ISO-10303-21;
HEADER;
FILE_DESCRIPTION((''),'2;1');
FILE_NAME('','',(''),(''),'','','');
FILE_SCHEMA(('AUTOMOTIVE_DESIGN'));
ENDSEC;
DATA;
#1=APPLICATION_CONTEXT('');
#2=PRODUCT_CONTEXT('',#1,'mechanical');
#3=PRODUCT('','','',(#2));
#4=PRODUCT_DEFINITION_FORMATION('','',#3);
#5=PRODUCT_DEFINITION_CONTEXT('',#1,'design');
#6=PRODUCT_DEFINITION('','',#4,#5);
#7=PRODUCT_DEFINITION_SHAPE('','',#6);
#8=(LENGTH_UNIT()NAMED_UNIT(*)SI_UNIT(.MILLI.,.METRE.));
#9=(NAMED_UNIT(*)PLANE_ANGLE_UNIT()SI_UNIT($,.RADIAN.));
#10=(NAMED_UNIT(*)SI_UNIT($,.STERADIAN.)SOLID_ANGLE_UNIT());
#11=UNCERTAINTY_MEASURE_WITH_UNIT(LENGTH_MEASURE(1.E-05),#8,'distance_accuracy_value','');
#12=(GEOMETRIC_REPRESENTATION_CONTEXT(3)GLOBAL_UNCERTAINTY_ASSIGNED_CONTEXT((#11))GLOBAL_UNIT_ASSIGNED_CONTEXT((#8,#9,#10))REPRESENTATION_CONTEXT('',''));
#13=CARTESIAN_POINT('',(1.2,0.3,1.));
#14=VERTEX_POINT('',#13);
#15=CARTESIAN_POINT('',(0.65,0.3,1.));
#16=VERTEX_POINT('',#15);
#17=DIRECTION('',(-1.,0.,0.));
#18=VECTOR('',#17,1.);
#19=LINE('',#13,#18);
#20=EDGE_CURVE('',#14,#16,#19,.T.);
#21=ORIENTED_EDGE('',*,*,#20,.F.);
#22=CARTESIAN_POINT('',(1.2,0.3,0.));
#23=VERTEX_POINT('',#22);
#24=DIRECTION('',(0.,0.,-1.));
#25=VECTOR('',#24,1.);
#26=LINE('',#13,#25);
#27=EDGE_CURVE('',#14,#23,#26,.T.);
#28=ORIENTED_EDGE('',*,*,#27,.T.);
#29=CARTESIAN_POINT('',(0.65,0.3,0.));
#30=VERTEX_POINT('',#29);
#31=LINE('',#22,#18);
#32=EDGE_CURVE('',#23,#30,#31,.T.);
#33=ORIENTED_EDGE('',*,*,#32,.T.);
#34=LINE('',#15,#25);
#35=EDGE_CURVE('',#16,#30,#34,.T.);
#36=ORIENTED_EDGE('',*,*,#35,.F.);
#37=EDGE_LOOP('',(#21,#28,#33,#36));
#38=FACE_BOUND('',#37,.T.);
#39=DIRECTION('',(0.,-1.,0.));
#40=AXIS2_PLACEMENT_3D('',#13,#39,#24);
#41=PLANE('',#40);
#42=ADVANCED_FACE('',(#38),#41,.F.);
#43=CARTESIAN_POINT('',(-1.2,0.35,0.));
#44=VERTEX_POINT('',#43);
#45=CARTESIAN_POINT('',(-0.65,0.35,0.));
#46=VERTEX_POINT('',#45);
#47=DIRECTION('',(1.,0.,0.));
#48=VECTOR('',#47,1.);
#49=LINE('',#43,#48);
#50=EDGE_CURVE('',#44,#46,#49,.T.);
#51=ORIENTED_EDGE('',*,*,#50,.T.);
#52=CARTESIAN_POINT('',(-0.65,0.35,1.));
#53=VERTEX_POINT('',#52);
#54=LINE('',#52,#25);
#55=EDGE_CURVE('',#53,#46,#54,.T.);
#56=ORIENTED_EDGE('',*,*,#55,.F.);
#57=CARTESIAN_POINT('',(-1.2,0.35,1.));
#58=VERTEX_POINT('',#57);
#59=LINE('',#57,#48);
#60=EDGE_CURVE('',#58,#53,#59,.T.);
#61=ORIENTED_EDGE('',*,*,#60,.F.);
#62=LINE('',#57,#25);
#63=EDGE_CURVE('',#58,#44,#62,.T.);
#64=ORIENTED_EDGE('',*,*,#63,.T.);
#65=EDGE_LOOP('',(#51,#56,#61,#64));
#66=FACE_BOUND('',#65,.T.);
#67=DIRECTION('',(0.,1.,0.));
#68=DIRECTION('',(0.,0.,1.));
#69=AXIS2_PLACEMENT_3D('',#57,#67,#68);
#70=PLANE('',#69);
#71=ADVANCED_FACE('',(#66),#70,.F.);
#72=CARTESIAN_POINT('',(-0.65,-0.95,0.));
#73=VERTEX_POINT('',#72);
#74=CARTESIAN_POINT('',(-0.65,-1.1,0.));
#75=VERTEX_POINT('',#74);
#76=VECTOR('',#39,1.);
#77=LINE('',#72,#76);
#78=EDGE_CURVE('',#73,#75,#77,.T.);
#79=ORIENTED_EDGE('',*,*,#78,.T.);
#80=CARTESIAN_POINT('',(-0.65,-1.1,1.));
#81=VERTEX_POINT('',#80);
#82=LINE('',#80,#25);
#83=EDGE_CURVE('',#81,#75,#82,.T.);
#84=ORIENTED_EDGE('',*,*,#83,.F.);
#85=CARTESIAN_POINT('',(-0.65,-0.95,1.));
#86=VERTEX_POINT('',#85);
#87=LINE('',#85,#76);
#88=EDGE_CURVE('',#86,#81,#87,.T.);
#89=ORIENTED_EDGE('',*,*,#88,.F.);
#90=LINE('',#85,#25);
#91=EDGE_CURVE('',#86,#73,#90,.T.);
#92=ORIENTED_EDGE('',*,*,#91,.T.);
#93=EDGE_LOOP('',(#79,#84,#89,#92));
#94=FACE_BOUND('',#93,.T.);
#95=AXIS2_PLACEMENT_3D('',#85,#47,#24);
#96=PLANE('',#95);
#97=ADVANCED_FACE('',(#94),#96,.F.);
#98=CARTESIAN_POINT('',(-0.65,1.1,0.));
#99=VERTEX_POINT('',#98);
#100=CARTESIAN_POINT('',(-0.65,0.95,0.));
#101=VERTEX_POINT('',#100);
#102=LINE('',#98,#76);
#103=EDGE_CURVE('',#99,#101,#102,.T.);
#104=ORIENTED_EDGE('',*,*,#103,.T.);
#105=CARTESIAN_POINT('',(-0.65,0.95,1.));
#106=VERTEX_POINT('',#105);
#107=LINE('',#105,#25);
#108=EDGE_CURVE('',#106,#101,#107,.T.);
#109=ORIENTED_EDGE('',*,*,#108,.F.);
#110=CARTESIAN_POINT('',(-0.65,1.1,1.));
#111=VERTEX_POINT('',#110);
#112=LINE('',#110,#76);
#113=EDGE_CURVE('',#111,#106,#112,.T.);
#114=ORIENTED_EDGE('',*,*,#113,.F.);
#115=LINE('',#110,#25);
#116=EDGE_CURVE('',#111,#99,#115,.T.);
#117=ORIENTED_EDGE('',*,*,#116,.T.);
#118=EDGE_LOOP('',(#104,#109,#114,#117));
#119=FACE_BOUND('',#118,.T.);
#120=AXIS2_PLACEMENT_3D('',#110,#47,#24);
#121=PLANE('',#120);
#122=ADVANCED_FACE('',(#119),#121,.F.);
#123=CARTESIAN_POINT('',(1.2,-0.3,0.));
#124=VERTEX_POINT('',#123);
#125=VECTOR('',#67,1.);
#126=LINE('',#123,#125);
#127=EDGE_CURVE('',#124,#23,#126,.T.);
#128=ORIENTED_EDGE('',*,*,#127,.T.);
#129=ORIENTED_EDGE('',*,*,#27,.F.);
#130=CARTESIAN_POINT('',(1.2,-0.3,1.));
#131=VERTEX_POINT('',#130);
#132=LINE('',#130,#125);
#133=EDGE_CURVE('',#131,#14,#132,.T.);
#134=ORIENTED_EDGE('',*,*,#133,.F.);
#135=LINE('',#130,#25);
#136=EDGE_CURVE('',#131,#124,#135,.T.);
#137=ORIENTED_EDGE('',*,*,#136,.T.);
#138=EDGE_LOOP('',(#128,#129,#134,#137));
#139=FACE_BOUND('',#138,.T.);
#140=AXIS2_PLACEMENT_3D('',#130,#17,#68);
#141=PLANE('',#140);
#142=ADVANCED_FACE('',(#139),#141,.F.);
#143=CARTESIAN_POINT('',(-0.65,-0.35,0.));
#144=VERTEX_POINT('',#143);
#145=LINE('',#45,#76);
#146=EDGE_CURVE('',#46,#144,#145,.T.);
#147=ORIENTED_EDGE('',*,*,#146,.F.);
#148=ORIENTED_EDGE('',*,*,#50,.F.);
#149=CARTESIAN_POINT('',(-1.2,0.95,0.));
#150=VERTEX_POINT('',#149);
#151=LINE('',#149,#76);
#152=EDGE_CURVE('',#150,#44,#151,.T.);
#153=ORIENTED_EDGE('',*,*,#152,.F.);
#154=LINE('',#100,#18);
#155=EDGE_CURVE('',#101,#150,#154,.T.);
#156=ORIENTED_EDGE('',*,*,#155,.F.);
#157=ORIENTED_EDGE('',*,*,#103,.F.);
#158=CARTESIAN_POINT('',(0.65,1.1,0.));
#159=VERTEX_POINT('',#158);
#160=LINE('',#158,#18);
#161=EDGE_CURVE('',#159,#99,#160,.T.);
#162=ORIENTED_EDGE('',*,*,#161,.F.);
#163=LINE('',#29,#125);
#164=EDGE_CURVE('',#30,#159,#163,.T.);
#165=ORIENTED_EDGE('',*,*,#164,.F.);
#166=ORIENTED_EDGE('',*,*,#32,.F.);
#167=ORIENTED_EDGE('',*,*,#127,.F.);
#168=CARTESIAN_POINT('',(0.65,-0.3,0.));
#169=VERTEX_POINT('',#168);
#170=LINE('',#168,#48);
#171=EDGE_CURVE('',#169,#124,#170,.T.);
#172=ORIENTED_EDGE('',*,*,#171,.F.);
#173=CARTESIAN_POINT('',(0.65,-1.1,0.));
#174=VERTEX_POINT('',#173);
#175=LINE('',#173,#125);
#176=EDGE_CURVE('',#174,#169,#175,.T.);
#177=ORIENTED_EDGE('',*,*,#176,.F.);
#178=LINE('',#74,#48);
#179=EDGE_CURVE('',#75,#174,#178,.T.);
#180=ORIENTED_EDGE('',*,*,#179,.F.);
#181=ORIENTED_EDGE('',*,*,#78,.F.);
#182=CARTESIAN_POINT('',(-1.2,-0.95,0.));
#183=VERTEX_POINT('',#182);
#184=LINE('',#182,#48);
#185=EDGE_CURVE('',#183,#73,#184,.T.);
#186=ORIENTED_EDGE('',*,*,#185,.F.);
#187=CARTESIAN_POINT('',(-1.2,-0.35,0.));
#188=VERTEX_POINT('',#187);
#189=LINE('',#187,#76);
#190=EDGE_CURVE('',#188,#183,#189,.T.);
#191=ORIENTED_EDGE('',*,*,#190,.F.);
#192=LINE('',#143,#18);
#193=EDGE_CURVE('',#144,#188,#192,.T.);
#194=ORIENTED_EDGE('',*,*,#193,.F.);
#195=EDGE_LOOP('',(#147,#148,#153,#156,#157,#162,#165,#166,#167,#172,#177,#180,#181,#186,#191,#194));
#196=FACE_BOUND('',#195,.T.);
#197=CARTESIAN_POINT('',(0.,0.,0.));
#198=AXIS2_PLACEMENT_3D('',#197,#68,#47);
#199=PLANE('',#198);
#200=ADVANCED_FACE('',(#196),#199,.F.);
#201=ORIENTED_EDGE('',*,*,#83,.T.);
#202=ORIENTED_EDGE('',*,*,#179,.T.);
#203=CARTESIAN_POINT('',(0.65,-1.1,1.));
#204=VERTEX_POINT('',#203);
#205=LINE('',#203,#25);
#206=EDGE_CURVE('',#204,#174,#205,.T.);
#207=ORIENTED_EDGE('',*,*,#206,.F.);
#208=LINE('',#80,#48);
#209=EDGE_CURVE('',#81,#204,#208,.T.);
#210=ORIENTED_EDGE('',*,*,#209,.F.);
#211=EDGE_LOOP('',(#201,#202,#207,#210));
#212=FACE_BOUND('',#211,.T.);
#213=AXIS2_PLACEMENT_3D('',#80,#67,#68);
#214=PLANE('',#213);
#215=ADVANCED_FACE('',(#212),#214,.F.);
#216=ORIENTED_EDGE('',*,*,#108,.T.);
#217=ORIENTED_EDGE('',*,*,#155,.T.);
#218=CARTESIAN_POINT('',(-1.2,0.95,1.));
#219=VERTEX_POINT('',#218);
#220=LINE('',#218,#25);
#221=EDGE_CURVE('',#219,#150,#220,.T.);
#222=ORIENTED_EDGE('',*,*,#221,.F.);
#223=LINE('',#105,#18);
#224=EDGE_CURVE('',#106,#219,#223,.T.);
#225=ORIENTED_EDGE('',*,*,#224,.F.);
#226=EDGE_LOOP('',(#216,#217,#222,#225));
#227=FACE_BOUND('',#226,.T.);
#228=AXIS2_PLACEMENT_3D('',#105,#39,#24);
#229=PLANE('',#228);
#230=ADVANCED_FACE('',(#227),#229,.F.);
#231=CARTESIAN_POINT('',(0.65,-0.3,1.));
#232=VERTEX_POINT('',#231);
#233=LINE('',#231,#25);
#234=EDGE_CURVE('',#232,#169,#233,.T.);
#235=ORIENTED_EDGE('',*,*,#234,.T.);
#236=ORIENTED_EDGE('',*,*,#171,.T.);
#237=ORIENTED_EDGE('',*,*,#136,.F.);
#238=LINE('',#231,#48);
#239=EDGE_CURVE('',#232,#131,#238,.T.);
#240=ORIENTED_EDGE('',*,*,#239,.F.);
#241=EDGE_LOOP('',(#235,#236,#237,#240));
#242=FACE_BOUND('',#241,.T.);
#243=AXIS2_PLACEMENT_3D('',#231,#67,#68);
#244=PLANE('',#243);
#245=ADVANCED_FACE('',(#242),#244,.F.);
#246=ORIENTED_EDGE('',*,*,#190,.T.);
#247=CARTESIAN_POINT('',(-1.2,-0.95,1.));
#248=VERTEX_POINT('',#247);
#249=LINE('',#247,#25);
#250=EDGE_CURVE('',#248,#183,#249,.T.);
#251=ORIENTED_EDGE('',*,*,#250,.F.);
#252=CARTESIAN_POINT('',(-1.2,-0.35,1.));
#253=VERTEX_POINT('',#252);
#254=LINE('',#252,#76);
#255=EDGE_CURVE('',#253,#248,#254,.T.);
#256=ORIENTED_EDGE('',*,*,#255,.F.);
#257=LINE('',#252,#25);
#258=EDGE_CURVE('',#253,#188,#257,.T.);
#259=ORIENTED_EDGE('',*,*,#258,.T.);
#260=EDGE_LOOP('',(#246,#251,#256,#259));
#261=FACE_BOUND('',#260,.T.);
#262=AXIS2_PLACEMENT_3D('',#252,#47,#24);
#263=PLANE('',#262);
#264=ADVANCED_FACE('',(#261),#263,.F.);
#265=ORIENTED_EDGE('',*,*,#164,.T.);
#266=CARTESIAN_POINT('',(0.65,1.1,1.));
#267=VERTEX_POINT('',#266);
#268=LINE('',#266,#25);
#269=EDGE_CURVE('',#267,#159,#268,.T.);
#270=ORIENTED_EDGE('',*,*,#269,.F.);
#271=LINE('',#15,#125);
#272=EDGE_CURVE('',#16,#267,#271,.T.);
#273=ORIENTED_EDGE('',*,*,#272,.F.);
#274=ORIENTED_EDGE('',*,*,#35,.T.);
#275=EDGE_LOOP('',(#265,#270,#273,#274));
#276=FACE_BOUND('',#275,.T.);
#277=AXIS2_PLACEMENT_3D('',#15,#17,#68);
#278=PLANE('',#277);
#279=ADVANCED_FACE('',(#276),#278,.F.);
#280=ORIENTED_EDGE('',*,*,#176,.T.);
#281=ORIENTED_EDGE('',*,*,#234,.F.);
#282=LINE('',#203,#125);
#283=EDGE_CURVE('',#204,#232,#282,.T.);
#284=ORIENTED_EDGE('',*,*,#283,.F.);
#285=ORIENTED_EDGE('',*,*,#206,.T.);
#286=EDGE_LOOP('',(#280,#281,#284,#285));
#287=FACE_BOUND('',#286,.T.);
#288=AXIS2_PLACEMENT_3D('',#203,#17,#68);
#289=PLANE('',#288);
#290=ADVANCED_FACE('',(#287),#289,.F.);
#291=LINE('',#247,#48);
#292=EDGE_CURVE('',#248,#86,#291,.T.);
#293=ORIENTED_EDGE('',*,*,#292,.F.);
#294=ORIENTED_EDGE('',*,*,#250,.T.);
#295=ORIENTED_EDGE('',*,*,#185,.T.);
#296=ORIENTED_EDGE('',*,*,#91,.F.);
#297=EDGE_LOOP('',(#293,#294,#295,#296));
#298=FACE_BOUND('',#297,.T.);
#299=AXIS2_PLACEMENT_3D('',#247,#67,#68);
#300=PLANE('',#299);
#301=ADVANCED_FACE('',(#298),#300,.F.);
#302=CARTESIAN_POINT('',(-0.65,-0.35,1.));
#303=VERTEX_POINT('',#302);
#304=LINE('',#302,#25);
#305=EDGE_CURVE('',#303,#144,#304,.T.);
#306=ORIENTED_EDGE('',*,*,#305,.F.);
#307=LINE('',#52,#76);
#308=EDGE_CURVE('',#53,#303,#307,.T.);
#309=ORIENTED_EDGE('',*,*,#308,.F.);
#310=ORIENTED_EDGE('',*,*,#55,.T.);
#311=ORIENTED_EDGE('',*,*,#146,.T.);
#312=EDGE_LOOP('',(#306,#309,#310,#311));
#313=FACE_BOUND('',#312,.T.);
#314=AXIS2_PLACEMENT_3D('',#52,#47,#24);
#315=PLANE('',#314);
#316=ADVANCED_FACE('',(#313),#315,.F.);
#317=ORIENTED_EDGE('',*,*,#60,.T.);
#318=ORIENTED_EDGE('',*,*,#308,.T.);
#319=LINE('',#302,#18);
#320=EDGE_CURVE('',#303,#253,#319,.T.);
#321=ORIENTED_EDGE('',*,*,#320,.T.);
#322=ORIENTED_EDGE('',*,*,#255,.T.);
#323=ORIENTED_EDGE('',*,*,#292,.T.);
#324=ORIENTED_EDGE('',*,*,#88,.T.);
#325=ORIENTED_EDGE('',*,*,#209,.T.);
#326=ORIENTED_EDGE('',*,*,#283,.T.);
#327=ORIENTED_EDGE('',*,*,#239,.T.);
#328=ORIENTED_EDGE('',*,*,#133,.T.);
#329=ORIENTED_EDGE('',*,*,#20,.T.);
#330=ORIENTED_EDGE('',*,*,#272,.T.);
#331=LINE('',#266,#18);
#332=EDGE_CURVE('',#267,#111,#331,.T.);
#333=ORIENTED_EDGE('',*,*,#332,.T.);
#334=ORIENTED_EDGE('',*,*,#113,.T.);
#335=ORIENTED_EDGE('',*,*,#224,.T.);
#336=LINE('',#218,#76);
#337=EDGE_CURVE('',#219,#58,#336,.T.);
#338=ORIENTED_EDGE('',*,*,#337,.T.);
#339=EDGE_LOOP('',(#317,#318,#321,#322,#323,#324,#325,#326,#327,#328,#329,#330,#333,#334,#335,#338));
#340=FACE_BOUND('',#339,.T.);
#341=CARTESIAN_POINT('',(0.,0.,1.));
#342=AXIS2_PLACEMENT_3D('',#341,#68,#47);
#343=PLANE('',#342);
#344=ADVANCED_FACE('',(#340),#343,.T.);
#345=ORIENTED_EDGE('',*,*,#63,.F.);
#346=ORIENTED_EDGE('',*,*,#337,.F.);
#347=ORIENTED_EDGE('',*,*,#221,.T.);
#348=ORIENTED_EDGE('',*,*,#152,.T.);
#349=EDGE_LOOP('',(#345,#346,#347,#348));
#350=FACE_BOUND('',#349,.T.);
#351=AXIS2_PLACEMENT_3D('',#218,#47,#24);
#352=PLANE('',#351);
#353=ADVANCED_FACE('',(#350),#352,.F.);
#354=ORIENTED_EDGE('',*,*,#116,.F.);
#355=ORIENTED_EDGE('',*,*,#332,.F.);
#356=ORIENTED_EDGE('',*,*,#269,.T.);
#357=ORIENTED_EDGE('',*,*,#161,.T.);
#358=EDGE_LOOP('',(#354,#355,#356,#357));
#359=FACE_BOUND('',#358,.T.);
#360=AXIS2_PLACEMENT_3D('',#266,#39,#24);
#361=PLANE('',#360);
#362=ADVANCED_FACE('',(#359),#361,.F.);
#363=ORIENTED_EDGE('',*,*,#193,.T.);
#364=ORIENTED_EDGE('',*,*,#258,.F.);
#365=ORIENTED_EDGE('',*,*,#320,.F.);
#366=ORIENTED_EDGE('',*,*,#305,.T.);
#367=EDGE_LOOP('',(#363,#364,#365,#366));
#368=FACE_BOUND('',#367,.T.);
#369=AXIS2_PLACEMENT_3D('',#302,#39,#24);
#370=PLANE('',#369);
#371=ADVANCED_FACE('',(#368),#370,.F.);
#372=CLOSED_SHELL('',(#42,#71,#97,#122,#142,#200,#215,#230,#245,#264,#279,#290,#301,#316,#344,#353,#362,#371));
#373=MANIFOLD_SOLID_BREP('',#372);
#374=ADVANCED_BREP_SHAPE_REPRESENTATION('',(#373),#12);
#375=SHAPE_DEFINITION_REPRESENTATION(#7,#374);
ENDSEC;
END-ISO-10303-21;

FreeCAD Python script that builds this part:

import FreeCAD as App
import Part
import Sketcher
from FreeCAD import Vector


def add_polygon(sketch, points):
    """Adds a closed chain of lines whose ends are joined by coincident constraints."""
    first, n = sketch.GeometryCount, len(points)
    for a, b in zip(points, points[1:] + points[:1]):
        sketch.addGeometry(Part.LineSegment(App.Vector(*a, 0), App.Vector(*b, 0)), False)
    for i in range(n):
        sketch.addConstraint(Sketcher.Constraint("Coincident", first + i, 2, first + (i + 1) % n, 1))

doc = App.newDocument("Part")
body = doc.addObject("PartDesign::Body", "Body")

# Sketch on XY plane
sketch1 = body.newObject("Sketcher::SketchObject", "Sketch")
sketch1.AttachmentSupport = (doc.getObject("XY_Plane"), [""])
sketch1.MapMode = "FlatFace"
add_polygon(sketch1, [(-0.65, 1.1), (-0.65, 0.95), (-1.2, 0.95), (-1.2, 0.35), (-0.65, 0.35), (-0.65, -0.35), (-1.2, -0.35), (-1.2, -0.95), (-0.65, -0.95), (-0.65, -1.1), (0.65, -1.1), (0.65, -0.3), (1.2, -0.3), (1.2, 0.3), (0.65, 0.3), (0.65, 1.1)])  # lines 0-15
sketch1.addConstraint(Sketcher.Constraint("Vertical", 0))
sketch1.addConstraint(Sketcher.Constraint("Horizontal", 1))
sketch1.addConstraint(Sketcher.Constraint("Vertical", 2))
sketch1.addConstraint(Sketcher.Constraint("Horizontal", 3))
sketch1.addConstraint(Sketcher.Constraint("Vertical", 4))
sketch1.addConstraint(Sketcher.Constraint("Horizontal", 5))
sketch1.addConstraint(Sketcher.Constraint("Vertical", 6))
sketch1.addConstraint(Sketcher.Constraint("Horizontal", 7))
sketch1.addConstraint(Sketcher.Constraint("Vertical", 8))
sketch1.addConstraint(Sketcher.Constraint("Horizontal", 9))
sketch1.addConstraint(Sketcher.Constraint("Vertical", 10))
sketch1.addConstraint(Sketcher.Constraint("Horizontal", 11))
sketch1.addConstraint(Sketcher.Constraint("Vertical", 12))
sketch1.addConstraint(Sketcher.Constraint("Horizontal", 13))
sketch1.addConstraint(Sketcher.Constraint("Vertical", 14))
sketch1.addConstraint(Sketcher.Constraint("Horizontal", 15))
sketch1.addConstraint(Sketcher.Constraint("Symmetric", 8, 2, 14, 2, -1, 1))
sketch1.addConstraint(Sketcher.Constraint("Symmetric", 2, 2, 5, 2, -1))
sketch1.addConstraint(Sketcher.Constraint("Symmetric", 0, 2, 7, 2, -1))
sketch1.addConstraint(Sketcher.Constraint("Symmetric", 10, 2, 13, 2, -1))
sketch1.addConstraint(Sketcher.Constraint("Vertical", 0, 2, 3, 2))
sketch1.addConstraint(Sketcher.Constraint("Equal", 7, 11))
sketch1.addConstraint(Sketcher.Constraint("Equal", 6, 12))
sketch1.addConstraint(Sketcher.Constraint("DistanceX", 9, 1, 9, 2, 1.3))
sketch1.addConstraint(Sketcher.Constraint("DistanceY", 2, 2, 2, 1, 0.6))
sketch1.addConstraint(Sketcher.Constraint("DistanceY", 4, 2, 4, 1, 0.7))
sketch1.addConstraint(Sketcher.Constraint("DistanceY", 10, 1, 10, 2, 0.8))
sketch1.addConstraint(Sketcher.Constraint("DistanceX", 1, 2, 1, 1, 0.55))
pad1 = body.newObject("PartDesign::Pad", "Pad")
pad1.Profile = sketch1
pad1.Length = 1

doc.recompute()
